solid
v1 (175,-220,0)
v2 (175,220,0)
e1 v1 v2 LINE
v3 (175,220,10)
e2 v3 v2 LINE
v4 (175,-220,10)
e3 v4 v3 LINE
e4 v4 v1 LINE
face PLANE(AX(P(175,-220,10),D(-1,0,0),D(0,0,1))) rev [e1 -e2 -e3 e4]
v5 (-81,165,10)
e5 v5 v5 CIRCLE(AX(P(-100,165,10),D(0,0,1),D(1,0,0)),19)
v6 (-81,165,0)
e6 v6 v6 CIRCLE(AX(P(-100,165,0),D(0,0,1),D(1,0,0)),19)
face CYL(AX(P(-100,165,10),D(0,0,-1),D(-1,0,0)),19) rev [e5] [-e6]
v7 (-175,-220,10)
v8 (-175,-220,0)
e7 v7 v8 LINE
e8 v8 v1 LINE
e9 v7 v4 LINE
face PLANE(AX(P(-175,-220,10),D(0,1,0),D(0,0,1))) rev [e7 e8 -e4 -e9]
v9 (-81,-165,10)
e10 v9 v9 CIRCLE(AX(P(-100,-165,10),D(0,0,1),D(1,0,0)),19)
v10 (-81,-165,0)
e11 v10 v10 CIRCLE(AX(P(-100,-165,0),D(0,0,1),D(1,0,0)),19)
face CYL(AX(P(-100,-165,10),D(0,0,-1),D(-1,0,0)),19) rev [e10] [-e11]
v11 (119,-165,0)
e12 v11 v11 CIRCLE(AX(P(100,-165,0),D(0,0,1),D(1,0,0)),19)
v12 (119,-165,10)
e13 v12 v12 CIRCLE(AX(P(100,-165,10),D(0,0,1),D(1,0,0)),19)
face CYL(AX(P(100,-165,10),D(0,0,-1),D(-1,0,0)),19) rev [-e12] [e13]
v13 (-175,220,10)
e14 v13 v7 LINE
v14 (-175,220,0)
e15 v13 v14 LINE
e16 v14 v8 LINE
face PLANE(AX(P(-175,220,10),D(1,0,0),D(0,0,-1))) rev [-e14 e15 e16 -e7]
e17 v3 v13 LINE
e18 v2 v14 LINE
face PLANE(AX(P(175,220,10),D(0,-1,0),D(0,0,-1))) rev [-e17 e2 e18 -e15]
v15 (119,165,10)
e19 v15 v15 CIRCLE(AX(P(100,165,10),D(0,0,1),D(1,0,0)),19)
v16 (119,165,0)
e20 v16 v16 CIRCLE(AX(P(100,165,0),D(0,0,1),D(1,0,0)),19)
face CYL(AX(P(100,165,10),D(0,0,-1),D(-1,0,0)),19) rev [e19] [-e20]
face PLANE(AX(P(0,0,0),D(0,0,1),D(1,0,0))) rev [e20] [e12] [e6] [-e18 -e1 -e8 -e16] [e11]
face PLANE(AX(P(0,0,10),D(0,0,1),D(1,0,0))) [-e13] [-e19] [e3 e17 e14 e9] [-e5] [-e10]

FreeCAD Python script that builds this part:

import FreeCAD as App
import Part
import Sketcher


def add_polygon(sketch, points):
    """Adds a closed chain of lines whose ends are joined by coincident constraints."""
    first, n = sketch.GeometryCount, len(points)
    for a, b in zip(points, points[1:] + points[:1]):
        sketch.addGeometry(Part.LineSegment(App.Vector(*a, 0), App.Vector(*b, 0)), False)
    for i in range(n):
        sketch.addConstraint(Sketcher.Constraint("Coincident", first + i, 2, first + (i + 1) % n, 1))

doc = App.newDocument("Part")
body = doc.addObject("PartDesign::Body", "Body")

# Sketch on XY plane
sketch1 = body.newObject("Sketcher::SketchObject", "Sketch")
sketch1.AttachmentSupport = (doc.getObject("XY_Plane"), [""])
sketch1.MapMode = "FlatFace"
add_polygon(sketch1, [(-175, 220), (-175, -220), (175, -220), (175, 220)])  # lines 0-3
sketch1.addGeometry(Part.Circle(App.Vector(-100, -165, 0), App.Vector(0, 0, 1), 19), False)  # 4
sketch1.addGeometry(Part.Circle(App.Vector(100, -165, 0), App.Vector(0, 0, 1), 19), False)  # 5
sketch1.addGeometry(Part.Circle(App.Vector(-100, 165, 0), App.Vector(0, 0, 1), 19), False)  # 6
sketch1.addGeometry(Part.Circle(App.Vector(100, 165, 0), App.Vector(0, 0, 1), 19), False)  # 7
sketch1.addConstraint([
    Sketcher.Constraint("Vertical", 0),
    Sketcher.Constraint("Horizontal", 1),
    Sketcher.Constraint("Vertical", 2),
    Sketcher.Constraint("Horizontal", 3),
    Sketcher.Constraint("Equal", 4, 5),
    Sketcher.Constraint("Equal", 5, 6),
    Sketcher.Constraint("Equal", 6, 7),
    Sketcher.Constraint("Symmetric", 5, 3, 6, 3, -1, 1),
    Sketcher.Constraint("Symmetric", 4, 3, 7, 3, -1, 1),
    Sketcher.Constraint("Symmetric", 0, 2, 2, 2, -1, 1),
    Sketcher.Constraint("Symmetric", 4, 3, 5, 3, -2),
    Sketcher.Constraint("Diameter", 4, 38.0),
    Sketcher.Constraint("DistanceX", 1, 1, 1, 2, 350.0),
    Sketcher.Constraint("DistanceY", 0, 2, 0, 1, 440.0),
    Sketcher.Constraint("DistanceX", 4, 3, -1, 1, 100.0),
    Sketcher.Constraint("DistanceY", 4, 3, -1, 1, 165.0),
])
pad1 = body.newObject("PartDesign::Pad", "Pad")
pad1.Profile = sketch1
pad1.Length = 10

doc.recompute()
